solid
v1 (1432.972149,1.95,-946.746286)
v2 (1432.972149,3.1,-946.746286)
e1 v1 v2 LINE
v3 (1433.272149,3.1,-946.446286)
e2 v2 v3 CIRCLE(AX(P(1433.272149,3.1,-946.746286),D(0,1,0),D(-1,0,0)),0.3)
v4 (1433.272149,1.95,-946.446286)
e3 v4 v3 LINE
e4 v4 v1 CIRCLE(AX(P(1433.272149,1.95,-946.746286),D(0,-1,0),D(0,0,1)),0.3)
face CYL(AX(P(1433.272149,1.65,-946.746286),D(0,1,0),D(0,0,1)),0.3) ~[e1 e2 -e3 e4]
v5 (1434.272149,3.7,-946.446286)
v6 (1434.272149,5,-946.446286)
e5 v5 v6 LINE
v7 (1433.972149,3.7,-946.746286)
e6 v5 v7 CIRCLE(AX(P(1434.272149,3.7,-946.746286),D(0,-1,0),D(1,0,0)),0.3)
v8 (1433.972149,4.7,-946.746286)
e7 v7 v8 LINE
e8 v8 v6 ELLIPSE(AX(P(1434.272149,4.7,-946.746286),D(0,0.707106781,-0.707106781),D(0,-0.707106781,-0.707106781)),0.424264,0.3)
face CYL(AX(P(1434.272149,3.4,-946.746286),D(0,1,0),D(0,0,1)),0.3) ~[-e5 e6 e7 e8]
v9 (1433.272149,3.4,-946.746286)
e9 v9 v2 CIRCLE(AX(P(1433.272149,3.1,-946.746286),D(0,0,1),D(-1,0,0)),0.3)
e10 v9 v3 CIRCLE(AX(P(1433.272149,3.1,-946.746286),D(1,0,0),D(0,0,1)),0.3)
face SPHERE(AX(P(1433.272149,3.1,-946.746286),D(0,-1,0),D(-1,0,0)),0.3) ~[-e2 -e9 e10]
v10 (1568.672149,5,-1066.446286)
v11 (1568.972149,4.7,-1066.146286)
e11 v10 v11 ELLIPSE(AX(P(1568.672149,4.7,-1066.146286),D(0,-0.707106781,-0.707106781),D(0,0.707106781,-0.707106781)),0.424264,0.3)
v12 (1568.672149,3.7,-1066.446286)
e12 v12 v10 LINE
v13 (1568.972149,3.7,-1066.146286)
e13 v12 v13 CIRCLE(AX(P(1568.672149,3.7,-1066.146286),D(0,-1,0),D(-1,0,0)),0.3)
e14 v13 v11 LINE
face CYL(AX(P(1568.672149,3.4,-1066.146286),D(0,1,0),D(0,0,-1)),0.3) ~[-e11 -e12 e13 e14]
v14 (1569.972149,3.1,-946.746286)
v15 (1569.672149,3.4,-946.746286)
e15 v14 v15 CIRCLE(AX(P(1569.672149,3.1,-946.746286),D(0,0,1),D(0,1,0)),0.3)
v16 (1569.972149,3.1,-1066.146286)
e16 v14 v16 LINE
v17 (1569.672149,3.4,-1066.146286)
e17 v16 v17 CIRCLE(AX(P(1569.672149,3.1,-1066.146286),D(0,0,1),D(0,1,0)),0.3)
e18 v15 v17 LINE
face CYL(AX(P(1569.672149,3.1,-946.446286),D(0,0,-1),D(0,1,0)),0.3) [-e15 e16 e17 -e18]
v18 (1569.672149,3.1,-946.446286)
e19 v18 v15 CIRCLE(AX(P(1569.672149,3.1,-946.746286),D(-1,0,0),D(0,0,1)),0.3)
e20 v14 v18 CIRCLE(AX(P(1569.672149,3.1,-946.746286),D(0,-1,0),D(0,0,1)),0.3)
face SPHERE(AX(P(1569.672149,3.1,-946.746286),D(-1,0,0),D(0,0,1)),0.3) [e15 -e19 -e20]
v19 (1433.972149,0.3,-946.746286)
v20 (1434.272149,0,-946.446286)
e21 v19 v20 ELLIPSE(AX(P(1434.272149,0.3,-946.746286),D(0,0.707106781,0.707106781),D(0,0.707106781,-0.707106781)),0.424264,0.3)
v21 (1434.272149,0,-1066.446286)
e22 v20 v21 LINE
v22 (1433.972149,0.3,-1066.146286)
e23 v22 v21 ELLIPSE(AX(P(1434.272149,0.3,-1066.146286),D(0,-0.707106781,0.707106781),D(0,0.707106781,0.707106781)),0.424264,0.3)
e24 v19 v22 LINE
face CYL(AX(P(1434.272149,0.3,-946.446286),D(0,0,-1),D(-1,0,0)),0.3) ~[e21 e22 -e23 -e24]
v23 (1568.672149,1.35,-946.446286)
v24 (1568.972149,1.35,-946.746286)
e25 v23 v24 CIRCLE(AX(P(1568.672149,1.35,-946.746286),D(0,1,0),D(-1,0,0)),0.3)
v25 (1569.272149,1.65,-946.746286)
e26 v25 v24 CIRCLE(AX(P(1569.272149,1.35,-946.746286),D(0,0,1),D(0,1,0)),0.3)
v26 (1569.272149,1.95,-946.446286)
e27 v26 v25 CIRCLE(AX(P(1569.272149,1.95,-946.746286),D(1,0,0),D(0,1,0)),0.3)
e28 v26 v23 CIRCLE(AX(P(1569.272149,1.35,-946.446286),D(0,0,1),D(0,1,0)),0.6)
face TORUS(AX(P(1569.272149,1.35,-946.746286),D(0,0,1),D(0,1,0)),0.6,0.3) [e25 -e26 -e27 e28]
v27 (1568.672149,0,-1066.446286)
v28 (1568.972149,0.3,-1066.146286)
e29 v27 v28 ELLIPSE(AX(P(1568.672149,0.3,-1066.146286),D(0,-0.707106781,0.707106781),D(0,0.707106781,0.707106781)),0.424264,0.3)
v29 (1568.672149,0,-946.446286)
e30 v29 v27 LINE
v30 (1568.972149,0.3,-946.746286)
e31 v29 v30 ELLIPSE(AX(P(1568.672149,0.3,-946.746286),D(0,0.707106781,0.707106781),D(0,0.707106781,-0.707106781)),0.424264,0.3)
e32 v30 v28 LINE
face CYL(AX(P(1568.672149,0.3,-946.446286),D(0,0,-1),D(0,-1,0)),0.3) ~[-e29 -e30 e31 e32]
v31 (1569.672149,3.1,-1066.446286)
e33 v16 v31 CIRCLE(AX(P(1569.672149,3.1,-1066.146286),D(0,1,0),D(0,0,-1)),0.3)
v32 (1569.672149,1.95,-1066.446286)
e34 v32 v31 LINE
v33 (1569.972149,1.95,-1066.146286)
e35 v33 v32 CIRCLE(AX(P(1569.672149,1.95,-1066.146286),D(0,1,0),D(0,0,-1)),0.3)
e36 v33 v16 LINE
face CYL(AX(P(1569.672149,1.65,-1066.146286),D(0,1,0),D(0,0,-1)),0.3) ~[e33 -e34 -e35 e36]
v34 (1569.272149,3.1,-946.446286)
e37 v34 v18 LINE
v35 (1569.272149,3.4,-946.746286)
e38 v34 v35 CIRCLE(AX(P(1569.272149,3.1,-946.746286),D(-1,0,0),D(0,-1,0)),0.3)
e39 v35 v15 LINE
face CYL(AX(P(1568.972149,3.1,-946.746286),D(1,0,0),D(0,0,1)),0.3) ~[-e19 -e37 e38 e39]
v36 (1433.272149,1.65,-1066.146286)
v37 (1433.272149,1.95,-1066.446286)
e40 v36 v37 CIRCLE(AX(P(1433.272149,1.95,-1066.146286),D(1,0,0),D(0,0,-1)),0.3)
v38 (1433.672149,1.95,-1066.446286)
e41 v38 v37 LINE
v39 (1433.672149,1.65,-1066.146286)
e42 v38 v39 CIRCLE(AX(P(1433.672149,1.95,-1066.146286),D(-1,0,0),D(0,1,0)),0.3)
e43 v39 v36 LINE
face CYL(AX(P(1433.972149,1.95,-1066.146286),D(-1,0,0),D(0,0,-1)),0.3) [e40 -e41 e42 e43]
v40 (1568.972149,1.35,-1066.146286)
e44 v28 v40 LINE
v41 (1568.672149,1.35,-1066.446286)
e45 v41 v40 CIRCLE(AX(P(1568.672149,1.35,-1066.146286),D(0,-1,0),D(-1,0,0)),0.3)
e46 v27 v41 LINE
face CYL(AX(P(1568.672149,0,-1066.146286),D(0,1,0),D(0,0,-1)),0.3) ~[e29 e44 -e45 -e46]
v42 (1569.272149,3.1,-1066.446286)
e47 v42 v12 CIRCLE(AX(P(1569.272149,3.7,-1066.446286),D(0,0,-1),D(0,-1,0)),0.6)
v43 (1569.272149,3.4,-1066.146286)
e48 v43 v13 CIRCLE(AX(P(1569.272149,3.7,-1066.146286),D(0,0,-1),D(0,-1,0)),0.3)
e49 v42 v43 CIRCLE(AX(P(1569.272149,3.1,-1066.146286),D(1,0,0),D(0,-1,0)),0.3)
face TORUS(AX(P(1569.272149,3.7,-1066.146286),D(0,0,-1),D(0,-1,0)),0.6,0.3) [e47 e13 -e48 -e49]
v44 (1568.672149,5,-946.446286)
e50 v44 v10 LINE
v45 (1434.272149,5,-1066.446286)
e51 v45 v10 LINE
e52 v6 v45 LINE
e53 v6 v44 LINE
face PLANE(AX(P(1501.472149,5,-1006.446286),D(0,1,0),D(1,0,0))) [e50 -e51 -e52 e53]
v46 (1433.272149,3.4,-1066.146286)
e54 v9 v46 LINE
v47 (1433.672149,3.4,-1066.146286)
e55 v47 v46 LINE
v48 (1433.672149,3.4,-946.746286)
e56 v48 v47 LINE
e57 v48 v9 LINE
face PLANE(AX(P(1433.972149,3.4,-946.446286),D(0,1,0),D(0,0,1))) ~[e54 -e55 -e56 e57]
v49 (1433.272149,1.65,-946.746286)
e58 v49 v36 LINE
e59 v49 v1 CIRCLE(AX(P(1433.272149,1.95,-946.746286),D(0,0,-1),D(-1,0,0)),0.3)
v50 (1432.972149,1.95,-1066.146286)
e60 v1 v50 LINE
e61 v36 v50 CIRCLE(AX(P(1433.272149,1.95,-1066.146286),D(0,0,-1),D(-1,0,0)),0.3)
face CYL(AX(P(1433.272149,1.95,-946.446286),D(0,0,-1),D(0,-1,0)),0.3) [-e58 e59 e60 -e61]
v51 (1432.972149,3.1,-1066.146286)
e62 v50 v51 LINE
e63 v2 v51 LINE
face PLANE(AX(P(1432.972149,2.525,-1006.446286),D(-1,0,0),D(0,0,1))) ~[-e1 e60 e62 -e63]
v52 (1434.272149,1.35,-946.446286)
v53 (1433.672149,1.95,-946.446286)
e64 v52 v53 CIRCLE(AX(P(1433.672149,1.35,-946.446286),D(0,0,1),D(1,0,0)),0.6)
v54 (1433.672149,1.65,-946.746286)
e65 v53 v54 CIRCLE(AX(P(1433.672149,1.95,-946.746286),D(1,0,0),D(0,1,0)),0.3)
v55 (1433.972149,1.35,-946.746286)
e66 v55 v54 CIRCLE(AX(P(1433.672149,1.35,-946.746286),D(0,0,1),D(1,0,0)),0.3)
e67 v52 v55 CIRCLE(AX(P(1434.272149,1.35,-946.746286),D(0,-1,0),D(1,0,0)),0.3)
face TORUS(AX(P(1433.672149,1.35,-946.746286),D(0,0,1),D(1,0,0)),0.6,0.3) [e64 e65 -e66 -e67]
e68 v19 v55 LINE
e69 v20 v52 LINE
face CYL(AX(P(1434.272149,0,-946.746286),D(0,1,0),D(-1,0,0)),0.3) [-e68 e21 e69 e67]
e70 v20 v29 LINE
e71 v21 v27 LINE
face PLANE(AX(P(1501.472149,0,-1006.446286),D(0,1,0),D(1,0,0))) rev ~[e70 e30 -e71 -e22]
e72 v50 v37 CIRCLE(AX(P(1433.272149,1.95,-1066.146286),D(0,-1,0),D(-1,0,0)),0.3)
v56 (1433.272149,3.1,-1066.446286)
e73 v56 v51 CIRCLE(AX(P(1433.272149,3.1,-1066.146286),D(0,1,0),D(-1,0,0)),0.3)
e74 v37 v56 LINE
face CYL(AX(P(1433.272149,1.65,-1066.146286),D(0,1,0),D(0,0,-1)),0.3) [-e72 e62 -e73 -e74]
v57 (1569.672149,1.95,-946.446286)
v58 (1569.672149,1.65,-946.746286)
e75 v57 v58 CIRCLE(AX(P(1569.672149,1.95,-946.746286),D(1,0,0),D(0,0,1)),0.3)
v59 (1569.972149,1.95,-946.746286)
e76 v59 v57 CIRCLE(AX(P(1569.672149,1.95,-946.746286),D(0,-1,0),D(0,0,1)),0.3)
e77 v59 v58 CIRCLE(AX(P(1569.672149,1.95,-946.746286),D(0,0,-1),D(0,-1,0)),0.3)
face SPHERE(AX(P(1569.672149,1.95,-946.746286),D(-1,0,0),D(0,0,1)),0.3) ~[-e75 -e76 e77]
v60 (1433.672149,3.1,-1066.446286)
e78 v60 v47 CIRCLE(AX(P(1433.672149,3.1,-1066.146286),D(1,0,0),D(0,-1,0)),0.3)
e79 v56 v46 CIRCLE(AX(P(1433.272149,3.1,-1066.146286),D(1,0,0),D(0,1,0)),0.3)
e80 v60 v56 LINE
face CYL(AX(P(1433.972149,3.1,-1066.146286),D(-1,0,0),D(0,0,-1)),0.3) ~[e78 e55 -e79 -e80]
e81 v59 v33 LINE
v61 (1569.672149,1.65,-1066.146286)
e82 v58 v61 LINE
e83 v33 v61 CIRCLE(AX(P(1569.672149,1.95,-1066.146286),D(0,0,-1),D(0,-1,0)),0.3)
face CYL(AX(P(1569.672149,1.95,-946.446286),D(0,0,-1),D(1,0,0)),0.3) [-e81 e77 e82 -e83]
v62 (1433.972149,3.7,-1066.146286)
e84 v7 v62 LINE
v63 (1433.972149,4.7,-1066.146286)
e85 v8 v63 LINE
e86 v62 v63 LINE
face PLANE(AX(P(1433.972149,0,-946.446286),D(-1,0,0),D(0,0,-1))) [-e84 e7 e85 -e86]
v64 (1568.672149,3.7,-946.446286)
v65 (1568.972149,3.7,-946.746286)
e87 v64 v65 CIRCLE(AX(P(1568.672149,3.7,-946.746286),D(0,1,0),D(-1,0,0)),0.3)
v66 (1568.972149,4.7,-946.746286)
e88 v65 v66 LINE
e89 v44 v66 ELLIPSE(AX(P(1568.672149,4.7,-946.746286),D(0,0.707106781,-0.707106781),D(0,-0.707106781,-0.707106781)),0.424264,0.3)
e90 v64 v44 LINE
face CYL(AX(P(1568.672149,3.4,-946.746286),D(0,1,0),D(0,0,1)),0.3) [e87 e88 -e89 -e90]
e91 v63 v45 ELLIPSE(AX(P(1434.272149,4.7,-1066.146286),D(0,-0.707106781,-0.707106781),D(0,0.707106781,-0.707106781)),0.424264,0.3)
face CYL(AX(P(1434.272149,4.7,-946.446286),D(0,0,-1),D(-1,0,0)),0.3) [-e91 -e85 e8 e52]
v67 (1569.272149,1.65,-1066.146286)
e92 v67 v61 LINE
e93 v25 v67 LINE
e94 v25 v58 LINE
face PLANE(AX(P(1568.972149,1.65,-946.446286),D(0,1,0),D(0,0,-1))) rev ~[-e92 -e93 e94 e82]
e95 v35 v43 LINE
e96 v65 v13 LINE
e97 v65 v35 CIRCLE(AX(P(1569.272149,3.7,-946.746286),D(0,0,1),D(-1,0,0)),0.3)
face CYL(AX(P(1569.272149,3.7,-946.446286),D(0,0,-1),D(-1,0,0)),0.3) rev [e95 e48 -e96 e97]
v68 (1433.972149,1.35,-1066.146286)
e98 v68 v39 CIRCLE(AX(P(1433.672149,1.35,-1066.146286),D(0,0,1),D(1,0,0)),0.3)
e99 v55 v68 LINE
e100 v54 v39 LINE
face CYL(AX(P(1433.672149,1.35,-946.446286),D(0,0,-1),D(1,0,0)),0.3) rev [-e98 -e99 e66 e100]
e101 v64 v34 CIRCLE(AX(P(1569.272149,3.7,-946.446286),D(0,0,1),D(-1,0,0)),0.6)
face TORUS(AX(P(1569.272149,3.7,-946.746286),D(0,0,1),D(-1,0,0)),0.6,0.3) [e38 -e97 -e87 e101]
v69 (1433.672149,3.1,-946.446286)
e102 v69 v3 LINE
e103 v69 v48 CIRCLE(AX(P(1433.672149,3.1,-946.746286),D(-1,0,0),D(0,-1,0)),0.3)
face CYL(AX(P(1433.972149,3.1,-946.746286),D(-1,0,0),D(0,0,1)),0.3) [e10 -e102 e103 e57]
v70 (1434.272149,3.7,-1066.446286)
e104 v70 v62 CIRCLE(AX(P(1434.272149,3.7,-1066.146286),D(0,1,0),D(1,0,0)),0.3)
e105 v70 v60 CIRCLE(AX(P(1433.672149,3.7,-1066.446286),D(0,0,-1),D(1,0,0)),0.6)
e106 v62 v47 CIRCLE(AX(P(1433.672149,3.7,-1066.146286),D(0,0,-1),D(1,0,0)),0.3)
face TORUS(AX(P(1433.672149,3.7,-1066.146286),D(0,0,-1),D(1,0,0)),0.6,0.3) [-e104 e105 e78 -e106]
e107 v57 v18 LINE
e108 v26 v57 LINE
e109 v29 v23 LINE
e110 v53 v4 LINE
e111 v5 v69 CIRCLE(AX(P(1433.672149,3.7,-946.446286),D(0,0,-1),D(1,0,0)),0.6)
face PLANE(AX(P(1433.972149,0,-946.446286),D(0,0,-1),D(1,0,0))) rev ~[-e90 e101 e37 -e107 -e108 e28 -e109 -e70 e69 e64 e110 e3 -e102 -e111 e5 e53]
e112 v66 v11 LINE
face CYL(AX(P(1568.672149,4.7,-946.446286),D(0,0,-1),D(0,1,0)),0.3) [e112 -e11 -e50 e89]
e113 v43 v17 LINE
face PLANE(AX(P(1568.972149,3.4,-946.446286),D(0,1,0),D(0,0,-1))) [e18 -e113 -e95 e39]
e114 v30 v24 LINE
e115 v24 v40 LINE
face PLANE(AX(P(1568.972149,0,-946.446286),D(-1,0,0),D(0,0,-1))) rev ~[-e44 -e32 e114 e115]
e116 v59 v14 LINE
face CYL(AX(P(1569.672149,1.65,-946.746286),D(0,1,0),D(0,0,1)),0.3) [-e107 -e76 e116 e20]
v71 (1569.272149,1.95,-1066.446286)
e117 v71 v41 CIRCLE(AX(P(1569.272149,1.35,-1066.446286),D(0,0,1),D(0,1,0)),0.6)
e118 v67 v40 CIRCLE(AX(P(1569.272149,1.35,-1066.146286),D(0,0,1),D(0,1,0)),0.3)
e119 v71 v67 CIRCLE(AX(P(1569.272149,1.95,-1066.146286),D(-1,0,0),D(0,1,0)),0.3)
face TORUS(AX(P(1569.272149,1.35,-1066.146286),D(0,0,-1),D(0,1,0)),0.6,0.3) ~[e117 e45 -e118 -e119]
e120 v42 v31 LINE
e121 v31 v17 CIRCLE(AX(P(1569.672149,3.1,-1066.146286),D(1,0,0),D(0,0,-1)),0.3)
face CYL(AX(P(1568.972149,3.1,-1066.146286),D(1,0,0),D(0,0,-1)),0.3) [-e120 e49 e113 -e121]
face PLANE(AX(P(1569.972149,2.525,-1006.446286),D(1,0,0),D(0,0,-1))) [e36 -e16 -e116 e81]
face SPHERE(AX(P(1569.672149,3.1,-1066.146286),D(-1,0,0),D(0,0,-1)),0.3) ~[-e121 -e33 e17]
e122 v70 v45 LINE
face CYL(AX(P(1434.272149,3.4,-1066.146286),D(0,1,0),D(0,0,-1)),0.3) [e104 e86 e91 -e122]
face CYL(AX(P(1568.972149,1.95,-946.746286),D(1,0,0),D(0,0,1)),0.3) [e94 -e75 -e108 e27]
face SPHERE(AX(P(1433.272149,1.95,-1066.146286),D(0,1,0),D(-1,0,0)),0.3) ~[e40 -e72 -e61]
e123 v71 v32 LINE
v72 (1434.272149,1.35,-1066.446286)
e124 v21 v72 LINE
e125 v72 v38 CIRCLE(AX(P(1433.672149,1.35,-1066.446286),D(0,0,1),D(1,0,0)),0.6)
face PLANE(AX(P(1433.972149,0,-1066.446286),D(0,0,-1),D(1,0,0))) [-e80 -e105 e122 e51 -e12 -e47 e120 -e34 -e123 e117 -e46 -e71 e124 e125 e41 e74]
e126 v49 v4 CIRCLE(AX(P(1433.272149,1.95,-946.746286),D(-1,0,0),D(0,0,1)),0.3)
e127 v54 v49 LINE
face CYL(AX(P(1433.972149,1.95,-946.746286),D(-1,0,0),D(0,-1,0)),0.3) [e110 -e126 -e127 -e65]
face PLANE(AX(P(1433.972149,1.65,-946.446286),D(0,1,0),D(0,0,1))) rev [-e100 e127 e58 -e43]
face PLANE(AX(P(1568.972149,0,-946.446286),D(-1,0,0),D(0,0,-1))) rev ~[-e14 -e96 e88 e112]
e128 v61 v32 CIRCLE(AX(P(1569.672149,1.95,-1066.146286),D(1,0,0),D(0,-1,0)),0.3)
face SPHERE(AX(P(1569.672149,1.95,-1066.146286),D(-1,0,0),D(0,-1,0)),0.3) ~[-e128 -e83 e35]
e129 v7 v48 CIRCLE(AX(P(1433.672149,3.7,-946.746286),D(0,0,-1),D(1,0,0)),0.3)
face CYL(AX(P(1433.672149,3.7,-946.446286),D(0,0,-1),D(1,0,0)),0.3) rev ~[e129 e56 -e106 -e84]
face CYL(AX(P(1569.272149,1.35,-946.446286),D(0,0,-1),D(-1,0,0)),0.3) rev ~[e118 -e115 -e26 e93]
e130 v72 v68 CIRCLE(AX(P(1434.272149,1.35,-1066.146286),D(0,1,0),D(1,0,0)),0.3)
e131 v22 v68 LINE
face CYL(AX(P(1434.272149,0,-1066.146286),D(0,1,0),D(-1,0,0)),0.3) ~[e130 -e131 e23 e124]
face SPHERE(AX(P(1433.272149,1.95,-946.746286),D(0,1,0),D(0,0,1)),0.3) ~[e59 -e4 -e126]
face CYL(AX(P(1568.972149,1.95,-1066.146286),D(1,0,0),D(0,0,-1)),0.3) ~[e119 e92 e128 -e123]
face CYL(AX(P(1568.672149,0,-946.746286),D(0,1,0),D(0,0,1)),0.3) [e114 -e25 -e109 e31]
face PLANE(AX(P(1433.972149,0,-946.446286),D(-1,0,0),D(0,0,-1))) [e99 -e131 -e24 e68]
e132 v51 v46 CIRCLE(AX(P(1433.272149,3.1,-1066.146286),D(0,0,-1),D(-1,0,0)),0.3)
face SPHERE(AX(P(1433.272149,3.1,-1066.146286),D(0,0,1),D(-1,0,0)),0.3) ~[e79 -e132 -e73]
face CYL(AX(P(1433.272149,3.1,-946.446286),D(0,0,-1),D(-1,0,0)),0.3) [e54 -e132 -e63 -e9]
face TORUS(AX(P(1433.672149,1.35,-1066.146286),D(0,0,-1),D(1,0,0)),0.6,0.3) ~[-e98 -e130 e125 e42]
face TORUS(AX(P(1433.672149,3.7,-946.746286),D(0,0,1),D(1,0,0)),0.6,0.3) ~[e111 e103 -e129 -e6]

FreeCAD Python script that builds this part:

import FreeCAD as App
import Part
import Sketcher
from FreeCAD import Vector
Q = App.Units.Quantity


def edges_at(feature, points):
    """Names of the edges that pass closest to the given points."""
    edges = feature.Shape.Edges
    near = lambda p: min(range(len(edges)), key=lambda i: edges[i].distToShape(Part.Vertex(*p))[0])
    return sorted({f"Edge{near(p) + 1}" for p in points})


def add_polygon(sketch, points):
    """Adds a closed chain of lines whose ends are joined by coincident constraints."""
    first, n = sketch.GeometryCount, len(points)
    for a, b in zip(points, points[1:] + points[:1]):
        sketch.addGeometry(Part.LineSegment(App.Vector(*a, 0), App.Vector(*b, 0)), False)
    for i in range(n):
        sketch.addConstraint(Sketcher.Constraint("Coincident", first + i, 2, first + (i + 1) % n, 1))

doc = App.newDocument("Part")
params = doc.addObject("Spreadsheet::Sheet", "Params")
for row, (alias, value) in enumerate([
    ("sketch1_width", "135 mm"),
    ("sketch1_height", "120 mm"),
    ("pad1_length", "5 mm"),
    ("sketch2_height", "120 mm"),
    ("sketch2_width", "1.75 mm"),
    ("pad2_length", "1 mm"),
    ("fillet_radius", "0.3 mm"),
], start=1):
    params.set(f"A{row}", alias)
    params.set(f"B{row}", "=" + value)
    params.setAlias(f"B{row}", alias)

body = doc.addObject("PartDesign::Body", "Body")

# Sketch on XZ plane
sketch1 = body.newObject("Sketcher::SketchObject", "Sketch")
sketch1.AttachmentSupport = (doc.getObject("XZ_Plane"), [""])
sketch1.MapMode = "FlatFace"
add_polygon(sketch1, [(1433.972149, -1066.446286), (1433.972149, -946.446286), (1568.972149, -946.446286), (1568.972149, -1066.446286)])  # lines 0-3
sketch1.addConstraint([
    Sketcher.Constraint("Vertical", 0),
    Sketcher.Constraint("Horizontal", 1),
    Sketcher.Constraint("Vertical", 2),
    Sketcher.Constraint("Horizontal", 3),
    Sketcher.Constraint("DistanceX", 1, 1, 1, 2, Q("135 mm")),
    Sketcher.Constraint("DistanceY", 0, 1, 0, 2, Q("120 mm")),
    Sketcher.Constraint("DistanceX", -1, 1, 0, 2, Q("1433.972149 mm")),
    Sketcher.Constraint("DistanceY", 0, 2, -1, 1, Q("946.446286 mm")),
])
sketch1.setExpression("Constraints[8]", "Params.sketch1_width")
sketch1.setExpression("Constraints[9]", "Params.sketch1_height")
pad1 = body.newObject("PartDesign::Pad", "Pad")
pad1.Profile = sketch1
pad1.setExpression("Length", "Params.pad1_length")
pad1.Reversed = True

# Sketch on YZ plane
sketch2 = body.newObject("Sketcher::SketchObject", "Sketch001")
sketch2.AttachmentSupport = (doc.getObject("YZ_Plane"), [""])
sketch2.MapMode = "FlatFace"
sketch2.AttachmentOffset = App.Placement(Vector(0, 0, 1568.972149), App.Rotation())
add_polygon(sketch2, [(3.4, -946.446286), (1.65, -946.446286), (1.65, -1066.446286), (3.4, -1066.446286)])  # lines 0-3
sketch2.addConstraint([
    Sketcher.Constraint("Horizontal", 0),
    Sketcher.Constraint("Vertical", 1),
    Sketcher.Constraint("Horizontal", 2),
    Sketcher.Constraint("Vertical", 3),
    Sketcher.Constraint("DistanceY", 1, 2, 1, 1, Q("120 mm")),
    Sketcher.Constraint("DistanceX", 0, 2, 0, 1, Q("1.75 mm")),
    Sketcher.Constraint("DistanceX", -1, 1, 2, 2, Q("3.4 mm")),
    Sketcher.Constraint("DistanceY", 0, 2, -1, 1, Q("946.446286 mm")),
])
sketch2.setExpression("Constraints[8]", "Params.sketch2_height")
sketch2.setExpression("Constraints[9]", "Params.sketch2_width")
pad2 = body.newObject("PartDesign::Pad", "Pad001")
pad2.Profile = sketch2
pad2.setExpression("Length", "Params.pad2_length")
doc.recompute()

datumplane = body.newObject("PartDesign::Plane", "DatumPlane")
datumplane.AttachmentSupport = (doc.getObject("YZ_Plane"), [""])
datumplane.MapMode = "FlatFace"
datumplane.AttachmentOffset = App.Placement(Vector(0, 0, 1501.472149), App.Rotation())
mirrored = body.newObject("PartDesign::Mirrored", "Mirrored")
mirrored.Originals = [pad2]
mirrored.MirrorPlane = (datumplane, [""])
body.Tip = mirrored
doc.recompute()

fillet = body.newObject("PartDesign::Fillet", "Fillet")
fillet.Base = (mirrored, edges_at(mirrored, [
    (1568.972, 5, -1006.446),
    (1568.972, 0.825, -1066.446),
    (1568.972, 0.825, -946.446),
    (1569.472, 3.4, -946.446),
    (1568.972, 1.65, -1006.446),
    (1569.472, 1.65, -946.446),
    (1569.472, 1.65, -1066.446),
    (1568.972, 3.4, -1006.446),
    (1569.472, 3.4, -1066.446),
    (1569.972, 2.525, -946.446),
    (1569.972, 1.65, -1006.446),
    (1569.972, 2.525, -1066.446),
    (1569.972, 3.4, -1006.446),
    (1433.972, 0.825, -946.446),
    (1433.972, 0.825, -1066.446),
    (1432.972, 2.525, -946.446),
    (1433.472, 1.65, -946.446),
    (1432.972, 3.4, -1006.446),
    (1433.472, 3.4, -946.446),
    (1432.972, 2.525, -1066.446),
    (1433.472, 3.4, -1066.446),
    (1432.972, 1.65, -1006.446),
    (1433.472, 1.65, -1066.446),
    (1433.972, 1.65, -1006.446),
    (1433.972, 3.4, -1006.446),
    (1433.972, 5, -1006.446),
    (1568.972, 0, -1006.446),
    (1433.972, 0, -1006.446),
    (1433.972, 4.2, -1066.446),
    (1568.972, 4.2, -1066.446),
    (1568.972, 4.2, -946.446),
    (1433.972, 4.2, -946.446),
]))
fillet.setExpression("Radius", "Params.fillet_radius")

doc.recompute()
